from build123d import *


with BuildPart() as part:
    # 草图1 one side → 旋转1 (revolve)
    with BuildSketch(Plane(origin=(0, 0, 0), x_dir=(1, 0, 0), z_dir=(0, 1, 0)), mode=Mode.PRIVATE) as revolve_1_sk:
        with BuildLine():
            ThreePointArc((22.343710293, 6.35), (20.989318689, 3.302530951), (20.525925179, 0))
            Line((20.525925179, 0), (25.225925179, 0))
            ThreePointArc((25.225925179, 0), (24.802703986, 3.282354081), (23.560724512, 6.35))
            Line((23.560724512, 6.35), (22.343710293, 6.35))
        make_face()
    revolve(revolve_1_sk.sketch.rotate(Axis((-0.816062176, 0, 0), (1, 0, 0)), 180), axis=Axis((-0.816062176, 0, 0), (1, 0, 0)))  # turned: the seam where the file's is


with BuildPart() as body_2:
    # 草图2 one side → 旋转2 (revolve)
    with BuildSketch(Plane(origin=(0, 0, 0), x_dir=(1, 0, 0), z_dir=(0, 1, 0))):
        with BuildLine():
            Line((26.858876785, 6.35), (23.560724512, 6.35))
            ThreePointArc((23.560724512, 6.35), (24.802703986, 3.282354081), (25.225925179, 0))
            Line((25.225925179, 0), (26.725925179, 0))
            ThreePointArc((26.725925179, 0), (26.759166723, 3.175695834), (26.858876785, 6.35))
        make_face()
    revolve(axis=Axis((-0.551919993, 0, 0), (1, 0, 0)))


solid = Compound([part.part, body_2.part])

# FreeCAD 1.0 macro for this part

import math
import FreeCAD as App
import Part
import Sketcher

V = App.Vector
Q = App.Units.Quantity

doc = App.newDocument("Part")
body = doc.addObject("PartDesign::Body", "Body")

# Sketch on XZ plane
sketch1 = body.newObject("Sketcher::SketchObject", "Sketch")
sketch1.AttachmentSupport = (doc.getObject("XZ_Plane"), [""])
sketch1.MapMode = "FlatFace"
sketch1.addGeometry(Part.ArcOfCircle(Part.Circle(V(32.525925, 0, 0), V(0, 0, 1), 12), math.radians(-180), math.radians(-148.050833)), False)
sketch1.addGeometry(Part.LineSegment(V(20.525925, 0, 0), V(25.225925, 0, 0)), False)
sketch1.addGeometry(Part.ArcOfCircle(Part.Circle(V(12.285925, 0, 0), V(0, 0, 1), 12.94), math.radians(-29.388339), math.radians(0)), False)
sketch1.addGeometry(Part.LineSegment(V(23.560725, -6.35, 0), V(22.34371, -6.35, 0)), False)
sketch1.addConstraint(Sketcher.Constraint("Coincident", 0, 1, 1, 1))
sketch1.addConstraint(Sketcher.Constraint("Coincident", 1, 2, 2, 2))
sketch1.addConstraint(Sketcher.Constraint("Coincident", 2, 1, 3, 1))
sketch1.addConstraint(Sketcher.Constraint("Coincident", 3, 2, 0, 2))
sketch1.addConstraint(Sketcher.Constraint("Horizontal", 1))
sketch1.addConstraint(Sketcher.Constraint("Horizontal", 3))
sketch1.addConstraint(Sketcher.Constraint("PointOnObject", 0, 3, -1))
sketch1.addConstraint(Sketcher.Constraint("PointOnObject", 2, 3, -1))
sketch1.addConstraint(Sketcher.Constraint("PointOnObject", 0, 1, -1))
sketch1.addConstraint(Sketcher.Constraint("Radius", 0, Q("12 mm")))
sketch1.addConstraint(Sketcher.Constraint("Radius", 2, Q("12.94 mm")))
sketch1.addConstraint(Sketcher.Constraint("DistanceX", 1, 1, 1, 2, Q("4.7 mm")))
sketch1.addConstraint(Sketcher.Constraint("DistanceY", 2, 1, -1, 1, Q("6.35 mm")))
sketch1.addConstraint(Sketcher.Constraint("DistanceX", -1, 1, 3, 2, Q("22.34371 mm")))
revolution = body.newObject("PartDesign::Revolution", "Revolution")
revolution.Profile = sketch1
revolution.ReferenceAxis = (sketch1, ["H_Axis"])
revolution.Angle = 360
body2 = doc.addObject("PartDesign::Body", "Body001")

# Sketch on XZ plane
sketch2 = body2.newObject("Sketcher::SketchObject", "Sketch001")
sketch2.AttachmentSupport = (doc.getObject("XZ_Plane001"), [""])
sketch2.MapMode = "FlatFace"
sketch2.addGeometry(Part.LineSegment(V(26.858877, -6.35, 0), V(23.560725, -6.35, 0)), False)
sketch2.addGeometry(Part.ArcOfCircle(Part.Circle(V(12.285925, 0, 0), V(0, 0, 1), 12.94), math.radians(-29.388339), math.radians(0)), False)
sketch2.addGeometry(Part.LineSegment(V(25.225925, 0, 0), V(26.725925, 0, 0)), False)
sketch2.addGeometry(Part.ArcOfCircle(Part.Circle(V(178.435928, 0, 0), V(0, 0, 1), 151.710003), math.radians(-180), math.radians(-177.601117)), False)
sketch2.addConstraint(Sketcher.Constraint("Coincident", 0, 2, 1, 1))
sketch2.addConstraint(Sketcher.Constraint("Coincident", 1, 2, 2, 1))
sketch2.addConstraint(Sketcher.Constraint("Coincident", 2, 2, 3, 1))
sketch2.addConstraint(Sketcher.Constraint("Coincident", 3, 2, 0, 1))
sketch2.addConstraint(Sketcher.Constraint("Horizontal", 0))
sketch2.addConstraint(Sketcher.Constraint("Horizontal", 2))
sketch2.addConstraint(Sketcher.Constraint("PointOnObject", 1, 3, -1))
sketch2.addConstraint(Sketcher.Constraint("PointOnObject", 3, 3, -1))
sketch2.addConstraint(Sketcher.Constraint("PointOnObject", 1, 2, -1))
sketch2.addConstraint(Sketcher.Constraint("Radius", 1, Q("12.94 mm")))
sketch2.addConstraint(Sketcher.Constraint("DistanceX", 2, 1, 2, 2, Q("1.5 mm")))
sketch2.addConstraint(Sketcher.Constraint("DistanceY", 0, 2, -1, 1, Q("6.35 mm")))
sketch2.addConstraint(Sketcher.Constraint("Radius", 3, Q("151.710003 mm")))
sketch2.addConstraint(Sketcher.Constraint("DistanceX", -1, 1, 1, 3, Q("12.285925 mm")))
revolution2 = body2.newObject("PartDesign::Revolution", "Revolution001")
revolution2.Profile = sketch2
revolution2.ReferenceAxis = (sketch2, ["H_Axis"])
revolution2.Angle = 360

doc.recompute()
